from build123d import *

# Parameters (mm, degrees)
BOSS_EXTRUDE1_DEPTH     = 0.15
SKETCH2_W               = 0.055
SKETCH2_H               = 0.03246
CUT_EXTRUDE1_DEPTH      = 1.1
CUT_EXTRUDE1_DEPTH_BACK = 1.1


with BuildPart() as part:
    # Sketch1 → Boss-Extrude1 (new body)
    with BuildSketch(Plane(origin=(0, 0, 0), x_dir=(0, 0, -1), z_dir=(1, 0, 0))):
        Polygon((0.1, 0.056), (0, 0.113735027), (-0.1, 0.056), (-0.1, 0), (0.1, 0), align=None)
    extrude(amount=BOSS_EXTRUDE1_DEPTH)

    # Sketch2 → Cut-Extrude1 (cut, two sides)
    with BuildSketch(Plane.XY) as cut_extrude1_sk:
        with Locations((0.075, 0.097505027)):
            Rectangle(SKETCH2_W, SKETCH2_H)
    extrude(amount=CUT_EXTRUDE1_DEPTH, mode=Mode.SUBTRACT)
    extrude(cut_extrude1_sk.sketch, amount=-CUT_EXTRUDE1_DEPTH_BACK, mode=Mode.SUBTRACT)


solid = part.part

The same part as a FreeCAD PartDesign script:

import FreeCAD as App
import Part
import Sketcher
Q = App.Units.Quantity

doc = App.newDocument("Part")
params = doc.addObject("Spreadsheet::Sheet", "Params")
for row, (alias, value) in enumerate([
    ("sketch1_height", "0.2 mm"),
    ("pad1_length", "0.15 mm"),
], start=1):
    params.set(f"A{row}", alias)
    params.set(f"B{row}", "=" + value)
    params.setAlias(f"B{row}", alias)

body = doc.addObject("PartDesign::Body", "Body")

# Sketch on YZ plane
sketch1 = body.newObject("Sketcher::SketchObject", "Sketch")
sketch1.AttachmentSupport = (doc.getObject("YZ_Plane"), [""])
sketch1.MapMode = "FlatFace"
sketch1.addGeometry(Part.LineSegment(App.Vector(0.06, -0.1, 0), App.Vector(0.11, 0, 0)), False)
sketch1.addGeometry(Part.LineSegment(App.Vector(0.11, 0, 0), App.Vector(0.06, 0.1, 0)), False)
sketch1.addGeometry(Part.LineSegment(App.Vector(0.06, 0.1, 0), App.Vector(0, 0.1, 0)), False)
sketch1.addGeometry(Part.LineSegment(App.Vector(0, 0.1, 0), App.Vector(0, -0.1, 0)), False)
sketch1.addGeometry(Part.LineSegment(App.Vector(0, -0.1, 0), App.Vector(0.06, -0.1, 0)), False)
sketch1.addConstraint(Sketcher.Constraint("Coincident", 0, 2, 1, 1))
sketch1.addConstraint(Sketcher.Constraint("Coincident", 1, 2, 2, 1))
sketch1.addConstraint(Sketcher.Constraint("Coincident", 2, 2, 3, 1))
sketch1.addConstraint(Sketcher.Constraint("Coincident", 3, 2, 4, 1))
sketch1.addConstraint(Sketcher.Constraint("Coincident", 4, 2, 0, 1))
sketch1.addConstraint(Sketcher.Constraint("Horizontal", 2))
sketch1.addConstraint(Sketcher.Constraint("Vertical", 3))
sketch1.addConstraint(Sketcher.Constraint("Horizontal", 4))
sketch1.addConstraint(Sketcher.Constraint("Symmetric", 2, 2, 3, 2, -1, 1))
sketch1.addConstraint(Sketcher.Constraint("PointOnObject", 0, 2, -1))
sketch1.addConstraint(Sketcher.Constraint("Vertical", 1, 2, 4, 2))
sketch1.addConstraint(Sketcher.Constraint("Angle", 0, Q("60 deg")))
sketch1.addConstraint(Sketcher.Constraint("DistanceY", 3, 2, 3, 1, 0.2))
sketch1.addConstraint(Sketcher.Constraint("DistanceX", 2, 2, 2, 1, 0.056))
sketch1.setExpression("Constraints[12]", "Params.sketch1_height")
pad1 = body.newObject("PartDesign::Pad", "Pad")
pad1.Profile = sketch1
pad1.setExpression("Length", "Params.pad1_length")

# Sketch on XY plane
sketch2 = body.newObject("Sketcher::SketchObject", "Sketch001")
sketch2.AttachmentSupport = (doc.getObject("XY_Plane"), [""])
sketch2.MapMode = "FlatFace"
sketch2.addGeometry(Part.LineSegment(App.Vector(0.048, 0.114, 0), App.Vector(0.048, 0.081, 0)), False)
sketch2.addGeometry(Part.LineSegment(App.Vector(0.048, 0.081, 0), App.Vector(0.102, 0.081, 0)), False)
sketch2.addGeometry(Part.LineSegment(App.Vector(0.102, 0.081, 0), App.Vector(0.102, 0.114, 0)), False)
sketch2.addGeometry(Part.LineSegment(App.Vector(0.102, 0.114, 0), App.Vector(0.048, 0.114, 0)), False)
sketch2.addConstraint(Sketcher.Constraint("Coincident", 0, 2, 1, 1))
sketch2.addConstraint(Sketcher.Constraint("Coincident", 1, 2, 2, 1))
sketch2.addConstraint(Sketcher.Constraint("Coincident", 2, 2, 3, 1))
sketch2.addConstraint(Sketcher.Constraint("Coincident", 3, 2, 0, 1))
sketch2.addConstraint(Sketcher.Constraint("Vertical", 0))
sketch2.addConstraint(Sketcher.Constraint("Horizontal", 1))
sketch2.addConstraint(Sketcher.Constraint("Vertical", 2))
sketch2.addConstraint(Sketcher.Constraint("Horizontal", 3))
sketch2.addConstraint(Sketcher.Constraint("DistanceX", 1, 1, 1, 2, 0.055))
sketch2.addConstraint(Sketcher.Constraint("DistanceY", 0, 2, 0, 1, 0.03246))
sketch2.addConstraint(Sketcher.Constraint("DistanceX", -1, 1, 0, 2, 0.0475))
sketch2.addConstraint(Sketcher.Constraint("DistanceY", -1, 1, 0, 2, 0.081275))
pocket1 = body.newObject("PartDesign::Pocket", "Pocket")
pocket1.Profile = sketch2
pocket1.Type = "ThroughAll"
pocket1.Midplane = True

doc.recompute()
